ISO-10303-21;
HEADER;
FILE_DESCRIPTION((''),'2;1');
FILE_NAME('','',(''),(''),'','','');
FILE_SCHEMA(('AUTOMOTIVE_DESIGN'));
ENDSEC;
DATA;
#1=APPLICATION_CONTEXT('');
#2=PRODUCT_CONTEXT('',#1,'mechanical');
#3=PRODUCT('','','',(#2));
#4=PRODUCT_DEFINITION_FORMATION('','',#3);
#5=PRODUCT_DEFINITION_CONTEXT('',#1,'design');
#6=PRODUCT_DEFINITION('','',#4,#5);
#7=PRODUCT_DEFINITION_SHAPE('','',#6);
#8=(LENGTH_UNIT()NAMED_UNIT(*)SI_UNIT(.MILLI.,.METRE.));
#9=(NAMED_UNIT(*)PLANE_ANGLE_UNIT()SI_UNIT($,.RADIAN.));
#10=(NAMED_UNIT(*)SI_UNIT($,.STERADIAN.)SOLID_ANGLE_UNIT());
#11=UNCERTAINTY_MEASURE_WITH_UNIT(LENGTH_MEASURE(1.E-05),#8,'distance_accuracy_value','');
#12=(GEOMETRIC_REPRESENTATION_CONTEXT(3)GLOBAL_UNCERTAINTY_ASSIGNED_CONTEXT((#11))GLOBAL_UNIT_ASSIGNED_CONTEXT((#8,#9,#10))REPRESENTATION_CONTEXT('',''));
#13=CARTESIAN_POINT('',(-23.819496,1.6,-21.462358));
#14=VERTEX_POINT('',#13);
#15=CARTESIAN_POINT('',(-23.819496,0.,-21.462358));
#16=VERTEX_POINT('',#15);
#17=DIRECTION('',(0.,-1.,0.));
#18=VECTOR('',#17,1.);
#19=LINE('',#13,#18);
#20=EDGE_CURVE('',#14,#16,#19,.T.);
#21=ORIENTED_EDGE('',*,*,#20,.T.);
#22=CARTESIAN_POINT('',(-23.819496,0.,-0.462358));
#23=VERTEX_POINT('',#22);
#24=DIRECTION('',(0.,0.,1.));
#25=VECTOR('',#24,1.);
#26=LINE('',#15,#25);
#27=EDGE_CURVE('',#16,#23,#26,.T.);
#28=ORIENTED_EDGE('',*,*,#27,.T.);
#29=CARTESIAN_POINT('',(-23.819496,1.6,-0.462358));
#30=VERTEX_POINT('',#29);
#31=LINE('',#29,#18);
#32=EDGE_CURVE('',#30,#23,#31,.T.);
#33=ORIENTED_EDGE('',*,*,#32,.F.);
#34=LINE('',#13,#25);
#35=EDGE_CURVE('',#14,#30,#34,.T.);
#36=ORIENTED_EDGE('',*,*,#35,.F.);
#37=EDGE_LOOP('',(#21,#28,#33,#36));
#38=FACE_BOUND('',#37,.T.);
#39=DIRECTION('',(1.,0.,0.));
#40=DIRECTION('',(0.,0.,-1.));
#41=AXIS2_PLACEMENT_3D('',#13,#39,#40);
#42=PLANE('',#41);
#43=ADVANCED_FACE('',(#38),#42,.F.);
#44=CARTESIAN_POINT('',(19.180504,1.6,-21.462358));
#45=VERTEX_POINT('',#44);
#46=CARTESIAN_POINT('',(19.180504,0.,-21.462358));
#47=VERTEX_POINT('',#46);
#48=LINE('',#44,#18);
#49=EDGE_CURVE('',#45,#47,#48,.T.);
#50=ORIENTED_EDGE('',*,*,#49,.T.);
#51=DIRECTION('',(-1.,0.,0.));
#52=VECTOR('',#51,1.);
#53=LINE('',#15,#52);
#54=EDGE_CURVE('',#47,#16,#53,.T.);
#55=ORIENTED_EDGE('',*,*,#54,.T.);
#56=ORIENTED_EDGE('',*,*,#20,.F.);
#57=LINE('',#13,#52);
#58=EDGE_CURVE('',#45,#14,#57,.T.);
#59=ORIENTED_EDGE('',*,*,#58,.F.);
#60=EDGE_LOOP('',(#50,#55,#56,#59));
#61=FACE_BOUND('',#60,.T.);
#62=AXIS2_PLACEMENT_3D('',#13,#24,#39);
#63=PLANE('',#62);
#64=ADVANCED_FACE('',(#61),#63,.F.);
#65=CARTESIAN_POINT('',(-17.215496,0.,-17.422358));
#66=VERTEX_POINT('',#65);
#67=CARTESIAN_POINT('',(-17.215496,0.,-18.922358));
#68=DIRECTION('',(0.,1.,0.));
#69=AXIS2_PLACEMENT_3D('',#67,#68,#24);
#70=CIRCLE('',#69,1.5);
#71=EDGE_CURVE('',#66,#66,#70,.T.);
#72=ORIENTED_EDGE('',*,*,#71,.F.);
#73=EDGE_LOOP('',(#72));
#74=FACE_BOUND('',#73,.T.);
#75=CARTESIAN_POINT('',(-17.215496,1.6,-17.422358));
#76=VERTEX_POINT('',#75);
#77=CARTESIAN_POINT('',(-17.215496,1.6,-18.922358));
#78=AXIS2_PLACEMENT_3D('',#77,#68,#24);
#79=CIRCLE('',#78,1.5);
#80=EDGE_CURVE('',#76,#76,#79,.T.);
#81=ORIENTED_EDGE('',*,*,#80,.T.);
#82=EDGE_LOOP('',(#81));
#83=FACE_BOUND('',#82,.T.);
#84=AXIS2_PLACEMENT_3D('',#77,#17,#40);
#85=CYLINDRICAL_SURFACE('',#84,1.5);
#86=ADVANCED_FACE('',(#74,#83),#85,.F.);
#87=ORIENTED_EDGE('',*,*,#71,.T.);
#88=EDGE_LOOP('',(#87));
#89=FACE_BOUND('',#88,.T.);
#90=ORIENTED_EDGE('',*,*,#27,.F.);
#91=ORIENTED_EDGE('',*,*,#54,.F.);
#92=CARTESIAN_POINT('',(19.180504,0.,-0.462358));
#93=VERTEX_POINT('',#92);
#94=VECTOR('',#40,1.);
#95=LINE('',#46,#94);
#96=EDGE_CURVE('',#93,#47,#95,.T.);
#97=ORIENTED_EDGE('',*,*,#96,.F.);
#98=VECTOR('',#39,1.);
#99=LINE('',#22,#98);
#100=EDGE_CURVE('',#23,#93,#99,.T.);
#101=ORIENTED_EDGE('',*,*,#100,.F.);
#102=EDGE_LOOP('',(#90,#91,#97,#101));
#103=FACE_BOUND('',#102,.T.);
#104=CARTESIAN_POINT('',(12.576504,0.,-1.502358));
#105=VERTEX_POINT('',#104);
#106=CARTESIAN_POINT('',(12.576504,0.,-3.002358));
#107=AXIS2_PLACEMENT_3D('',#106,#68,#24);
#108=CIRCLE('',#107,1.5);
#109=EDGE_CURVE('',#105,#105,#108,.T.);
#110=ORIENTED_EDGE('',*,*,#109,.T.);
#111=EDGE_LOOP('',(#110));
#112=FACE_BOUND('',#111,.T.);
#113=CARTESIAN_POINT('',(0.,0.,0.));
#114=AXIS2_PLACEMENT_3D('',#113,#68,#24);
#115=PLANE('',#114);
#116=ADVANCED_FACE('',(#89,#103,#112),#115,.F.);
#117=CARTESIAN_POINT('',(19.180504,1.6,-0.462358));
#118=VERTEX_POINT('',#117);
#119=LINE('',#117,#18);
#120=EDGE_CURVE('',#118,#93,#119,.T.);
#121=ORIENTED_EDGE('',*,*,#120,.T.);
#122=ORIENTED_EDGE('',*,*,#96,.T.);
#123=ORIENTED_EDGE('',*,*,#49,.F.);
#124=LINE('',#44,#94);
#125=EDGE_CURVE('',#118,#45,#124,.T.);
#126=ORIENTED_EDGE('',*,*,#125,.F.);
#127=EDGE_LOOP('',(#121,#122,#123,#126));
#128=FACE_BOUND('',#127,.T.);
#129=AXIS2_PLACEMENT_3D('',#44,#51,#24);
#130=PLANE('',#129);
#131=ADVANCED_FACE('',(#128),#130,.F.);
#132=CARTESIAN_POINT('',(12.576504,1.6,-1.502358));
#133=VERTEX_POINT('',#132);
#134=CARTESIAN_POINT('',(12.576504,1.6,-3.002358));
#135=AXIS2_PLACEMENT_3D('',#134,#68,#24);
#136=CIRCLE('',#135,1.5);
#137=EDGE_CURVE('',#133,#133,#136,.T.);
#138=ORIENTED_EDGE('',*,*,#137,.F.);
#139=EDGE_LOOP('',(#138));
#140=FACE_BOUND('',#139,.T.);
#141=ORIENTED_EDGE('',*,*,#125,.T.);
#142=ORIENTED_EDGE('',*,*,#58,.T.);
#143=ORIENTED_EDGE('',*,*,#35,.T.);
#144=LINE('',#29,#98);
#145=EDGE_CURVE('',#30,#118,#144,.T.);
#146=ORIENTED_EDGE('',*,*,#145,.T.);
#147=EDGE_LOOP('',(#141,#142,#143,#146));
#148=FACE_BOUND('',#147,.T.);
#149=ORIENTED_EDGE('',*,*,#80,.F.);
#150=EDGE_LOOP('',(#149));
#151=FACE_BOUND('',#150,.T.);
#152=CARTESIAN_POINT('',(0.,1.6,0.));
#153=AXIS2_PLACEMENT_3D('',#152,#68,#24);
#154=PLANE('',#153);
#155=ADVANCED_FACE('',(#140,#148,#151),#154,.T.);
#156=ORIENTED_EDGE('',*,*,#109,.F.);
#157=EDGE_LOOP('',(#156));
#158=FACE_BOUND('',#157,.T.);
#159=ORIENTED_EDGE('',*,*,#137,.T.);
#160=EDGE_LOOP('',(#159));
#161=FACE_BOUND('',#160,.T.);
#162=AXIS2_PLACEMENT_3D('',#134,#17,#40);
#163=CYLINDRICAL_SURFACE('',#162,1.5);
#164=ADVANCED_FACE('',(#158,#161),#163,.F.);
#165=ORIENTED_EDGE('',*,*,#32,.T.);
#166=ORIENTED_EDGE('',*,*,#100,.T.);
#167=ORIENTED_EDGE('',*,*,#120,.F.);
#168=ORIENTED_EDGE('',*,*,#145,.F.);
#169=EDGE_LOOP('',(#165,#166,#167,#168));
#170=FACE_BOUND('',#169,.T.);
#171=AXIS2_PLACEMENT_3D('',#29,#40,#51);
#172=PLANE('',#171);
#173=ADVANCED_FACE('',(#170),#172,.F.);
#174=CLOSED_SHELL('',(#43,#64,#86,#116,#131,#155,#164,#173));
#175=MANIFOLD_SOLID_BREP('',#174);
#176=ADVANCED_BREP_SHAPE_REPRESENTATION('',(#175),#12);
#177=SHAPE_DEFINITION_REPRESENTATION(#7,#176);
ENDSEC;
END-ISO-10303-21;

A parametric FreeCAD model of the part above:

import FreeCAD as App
import Part
import Sketcher

V = App.Vector
Q = App.Units.Quantity


def add_polygon(sketch, points):
    """Adds a closed chain of lines whose ends are joined by coincident constraints."""
    first, n = sketch.GeometryCount, len(points)
    for a, b in zip(points, points[1:] + points[:1]):
        sketch.addGeometry(Part.LineSegment(App.Vector(*a, 0), App.Vector(*b, 0)), False)
    for i in range(n):
        sketch.addConstraint(Sketcher.Constraint("Coincident", first + i, 2, first + (i + 1) % n, 1))

doc = App.newDocument("Part")
body = doc.addObject("PartDesign::Body", "Body")

# Sketch on XZ plane
sketch1 = body.newObject("Sketcher::SketchObject", "Sketch")
sketch1.AttachmentSupport = (doc.getObject("XZ_Plane"), [""])
sketch1.MapMode = "FlatFace"
add_polygon(sketch1, [(-23.8, -21.5), (-23.8, -0.5), (19.2, -0.5), (19.2, -21.5)])  # lines 0-3
sketch1.addGeometry(Part.Circle(V(12.6, -3, 0), V(0, 0, 1), 1.5), False)  # 4
sketch1.addGeometry(Part.Circle(V(-17.2, -18.9, 0), V(0, 0, 1), 1.5), False)  # 5
sketch1.addConstraint([
    Sketcher.Constraint("Vertical", 0),
    Sketcher.Constraint("Horizontal", 1),
    Sketcher.Constraint("Vertical", 2),
    Sketcher.Constraint("Horizontal", 3),
    Sketcher.Constraint("Equal", 4, 5),
    Sketcher.Constraint("Diameter", 4, Q("3 mm")),
    Sketcher.Constraint("DistanceX", 1, 1, 1, 2, Q("43 mm")),
    Sketcher.Constraint("DistanceY", 0, 1, 0, 2, Q("21 mm")),
    Sketcher.Constraint("DistanceY", 5, 3, 4, 3, Q("15.92 mm")),
    Sketcher.Constraint("DistanceY", 5, 3, 0, 2, Q("18.46 mm")),
    Sketcher.Constraint("DistanceX", 5, 3, 4, 3, Q("29.792 mm")),
    Sketcher.Constraint("DistanceX", 0, 2, 5, 3, Q("6.604 mm")),
    Sketcher.Constraint("DistanceY", 4, 3, -1, 1, Q("3.002358 mm")),
    Sketcher.Constraint("DistanceX", -1, 1, 4, 3, Q("12.576504 mm")),
])
pad1 = body.newObject("PartDesign::Pad", "Pad")
pad1.Profile = sketch1
pad1.Length = 1.6
pad1.Reversed = True

doc.recompute()
